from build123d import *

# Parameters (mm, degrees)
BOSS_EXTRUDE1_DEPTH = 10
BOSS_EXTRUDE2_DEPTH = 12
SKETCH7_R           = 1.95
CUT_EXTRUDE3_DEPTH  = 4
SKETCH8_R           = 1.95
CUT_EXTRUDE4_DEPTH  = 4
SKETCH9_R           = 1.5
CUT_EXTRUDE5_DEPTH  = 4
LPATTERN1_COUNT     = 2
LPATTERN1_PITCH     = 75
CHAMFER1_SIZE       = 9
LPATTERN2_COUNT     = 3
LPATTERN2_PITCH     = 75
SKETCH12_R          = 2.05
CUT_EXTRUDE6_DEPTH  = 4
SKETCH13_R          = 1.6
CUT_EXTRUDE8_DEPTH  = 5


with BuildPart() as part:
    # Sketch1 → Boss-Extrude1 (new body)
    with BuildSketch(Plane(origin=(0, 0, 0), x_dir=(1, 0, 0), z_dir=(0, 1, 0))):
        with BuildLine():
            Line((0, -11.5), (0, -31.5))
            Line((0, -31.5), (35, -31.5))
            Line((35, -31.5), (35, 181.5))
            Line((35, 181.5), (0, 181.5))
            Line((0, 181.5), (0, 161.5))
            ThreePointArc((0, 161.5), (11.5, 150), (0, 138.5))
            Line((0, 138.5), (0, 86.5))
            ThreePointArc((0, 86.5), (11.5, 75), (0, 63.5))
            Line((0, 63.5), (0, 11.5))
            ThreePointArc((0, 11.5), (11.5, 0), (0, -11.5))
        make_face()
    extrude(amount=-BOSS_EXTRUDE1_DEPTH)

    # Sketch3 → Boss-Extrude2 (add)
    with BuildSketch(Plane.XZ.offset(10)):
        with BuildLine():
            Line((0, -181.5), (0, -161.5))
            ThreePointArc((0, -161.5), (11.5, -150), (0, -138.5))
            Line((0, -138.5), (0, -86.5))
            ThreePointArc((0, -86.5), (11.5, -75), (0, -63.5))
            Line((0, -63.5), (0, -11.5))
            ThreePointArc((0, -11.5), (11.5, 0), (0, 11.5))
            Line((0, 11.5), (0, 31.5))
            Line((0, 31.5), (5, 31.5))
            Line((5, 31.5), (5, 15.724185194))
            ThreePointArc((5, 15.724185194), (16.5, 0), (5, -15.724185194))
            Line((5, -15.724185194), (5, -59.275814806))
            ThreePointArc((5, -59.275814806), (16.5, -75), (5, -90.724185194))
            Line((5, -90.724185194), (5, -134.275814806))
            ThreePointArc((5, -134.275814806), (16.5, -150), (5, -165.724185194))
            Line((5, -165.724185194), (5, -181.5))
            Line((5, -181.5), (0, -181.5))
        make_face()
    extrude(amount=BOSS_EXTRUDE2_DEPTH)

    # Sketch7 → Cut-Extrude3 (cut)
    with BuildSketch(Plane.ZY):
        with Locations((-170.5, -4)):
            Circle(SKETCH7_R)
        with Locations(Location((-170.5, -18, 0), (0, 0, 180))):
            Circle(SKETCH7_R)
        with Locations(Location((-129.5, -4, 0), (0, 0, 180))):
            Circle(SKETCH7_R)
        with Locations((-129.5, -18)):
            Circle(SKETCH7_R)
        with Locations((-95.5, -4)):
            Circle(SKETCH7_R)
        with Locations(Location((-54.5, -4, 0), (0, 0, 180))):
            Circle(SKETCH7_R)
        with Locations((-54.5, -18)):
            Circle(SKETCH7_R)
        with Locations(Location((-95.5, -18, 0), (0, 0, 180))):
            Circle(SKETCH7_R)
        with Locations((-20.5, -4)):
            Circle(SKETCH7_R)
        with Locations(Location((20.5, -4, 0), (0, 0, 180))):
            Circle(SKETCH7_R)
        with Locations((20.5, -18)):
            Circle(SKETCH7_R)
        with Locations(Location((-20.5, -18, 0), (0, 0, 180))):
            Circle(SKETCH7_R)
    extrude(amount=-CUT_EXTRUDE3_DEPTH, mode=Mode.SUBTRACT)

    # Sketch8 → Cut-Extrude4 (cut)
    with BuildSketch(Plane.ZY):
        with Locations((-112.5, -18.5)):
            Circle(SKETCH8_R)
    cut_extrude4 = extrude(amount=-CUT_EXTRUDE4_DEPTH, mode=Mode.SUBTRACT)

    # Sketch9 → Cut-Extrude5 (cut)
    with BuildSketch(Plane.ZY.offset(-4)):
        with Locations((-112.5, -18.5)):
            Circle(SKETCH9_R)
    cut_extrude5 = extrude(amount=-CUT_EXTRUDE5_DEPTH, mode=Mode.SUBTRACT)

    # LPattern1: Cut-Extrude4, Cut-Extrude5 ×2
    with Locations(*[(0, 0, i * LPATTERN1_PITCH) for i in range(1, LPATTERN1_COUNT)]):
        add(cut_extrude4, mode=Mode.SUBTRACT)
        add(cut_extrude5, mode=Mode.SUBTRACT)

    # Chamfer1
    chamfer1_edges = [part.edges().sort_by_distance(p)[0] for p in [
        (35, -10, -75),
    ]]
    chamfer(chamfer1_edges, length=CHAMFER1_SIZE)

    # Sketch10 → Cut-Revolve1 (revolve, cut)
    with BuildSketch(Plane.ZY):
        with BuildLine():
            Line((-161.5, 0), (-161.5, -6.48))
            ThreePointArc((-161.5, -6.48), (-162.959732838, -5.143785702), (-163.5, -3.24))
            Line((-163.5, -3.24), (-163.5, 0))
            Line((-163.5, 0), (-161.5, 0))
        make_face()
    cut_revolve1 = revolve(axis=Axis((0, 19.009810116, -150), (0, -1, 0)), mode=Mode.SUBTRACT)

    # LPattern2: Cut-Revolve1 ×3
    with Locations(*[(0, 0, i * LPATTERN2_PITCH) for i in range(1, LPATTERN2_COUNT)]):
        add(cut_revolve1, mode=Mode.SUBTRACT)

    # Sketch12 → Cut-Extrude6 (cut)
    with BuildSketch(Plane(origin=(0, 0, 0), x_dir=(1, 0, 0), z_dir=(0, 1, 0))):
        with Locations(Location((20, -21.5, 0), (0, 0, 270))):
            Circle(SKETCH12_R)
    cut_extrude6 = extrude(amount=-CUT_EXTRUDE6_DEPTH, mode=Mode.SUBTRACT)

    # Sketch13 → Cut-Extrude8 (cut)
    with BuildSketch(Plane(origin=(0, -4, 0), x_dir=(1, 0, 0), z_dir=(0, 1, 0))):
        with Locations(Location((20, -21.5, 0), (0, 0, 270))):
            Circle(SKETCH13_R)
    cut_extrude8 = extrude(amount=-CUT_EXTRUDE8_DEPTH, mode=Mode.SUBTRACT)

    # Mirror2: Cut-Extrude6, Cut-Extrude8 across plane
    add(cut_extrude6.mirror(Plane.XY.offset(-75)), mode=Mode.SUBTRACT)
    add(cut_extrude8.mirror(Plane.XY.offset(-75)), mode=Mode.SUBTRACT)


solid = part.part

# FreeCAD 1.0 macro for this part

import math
import FreeCAD as App
import Part
import Sketcher

V = App.Vector


def edges_at(feature, points):
    """Names of the edges that pass closest to the given points."""
    edges = feature.Shape.Edges
    near = lambda p: min(range(len(edges)), key=lambda i: edges[i].distToShape(Part.Vertex(*p))[0])
    return sorted({f"Edge{near(p) + 1}" for p in points})

doc = App.newDocument("Part")
body = doc.addObject("PartDesign::Body", "Body")

sketch1 = body.newObject("Sketcher::SketchObject", "Sketch")
sketch1.AttachmentSupport = (doc.getObject("XZ_Plane"), [""])
sketch1.MapMode = "FlatFace"
sketch1.addGeometry(Part.LineSegment(V(0, 12, 0), V(0, 32, 0)), False)
sketch1.addGeometry(Part.LineSegment(V(0, 32, 0), V(35, 32, 0)), False)
sketch1.addGeometry(Part.LineSegment(V(35, 32, 0), V(35, -182, 0)), False)
sketch1.addGeometry(Part.LineSegment(V(35, -182, 0), V(0, -182, 0)), False)
sketch1.addGeometry(Part.LineSegment(V(0, -182, 0), V(0, -162, 0)), False)
sketch1.addGeometry(Part.ArcOfCircle(Part.Circle(V(0, -150, 0), V(0, 0, 1), 12), math.radians(-90), math.radians(90)), False)
sketch1.addGeometry(Part.LineSegment(V(0, -138, 0), V(0, -86, 0)), False)
sketch1.addGeometry(Part.ArcOfCircle(Part.Circle(V(0, -75, 0), V(0, 0, 1), 12), math.radians(-90), math.radians(90)), False)
sketch1.addGeometry(Part.LineSegment(V(0, -64, 0), V(0, -12, 0)), False)
sketch1.addGeometry(Part.ArcOfCircle(Part.Circle(V(0, 0, 0), V(0, 0, 1), 12), math.radians(-90), math.radians(90)), False)
sketch1.addConstraint(Sketcher.Constraint("Coincident", 0, 2, 1, 1))
sketch1.addConstraint(Sketcher.Constraint("Coincident", 1, 2, 2, 1))
sketch1.addConstraint(Sketcher.Constraint("Coincident", 2, 2, 3, 1))
sketch1.addConstraint(Sketcher.Constraint("Coincident", 3, 2, 4, 1))
sketch1.addConstraint(Sketcher.Constraint("Coincident", 4, 2, 5, 1))
sketch1.addConstraint(Sketcher.Constraint("Coincident", 5, 2, 6, 1))
sketch1.addConstraint(Sketcher.Constraint("Coincident", 6, 2, 7, 1))
sketch1.addConstraint(Sketcher.Constraint("Coincident", 7, 2, 8, 1))
sketch1.addConstraint(Sketcher.Constraint("Coincident", 8, 2, 9, 1))
sketch1.addConstraint(Sketcher.Constraint("Coincident", 9, 2, 0, 1))
sketch1.addConstraint(Sketcher.Constraint("Vertical", 0))
sketch1.addConstraint(Sketcher.Constraint("Horizontal", 1))
sketch1.addConstraint(Sketcher.Constraint("Vertical", 2))
sketch1.addConstraint(Sketcher.Constraint("Horizontal", 3))
sketch1.addConstraint(Sketcher.Constraint("Vertical", 4))
sketch1.addConstraint(Sketcher.Constraint("Vertical", 6))
sketch1.addConstraint(Sketcher.Constraint("Vertical", 8))
sketch1.addConstraint(Sketcher.Constraint("Coincident", 9, 3, -1, 1))
sketch1.addConstraint(Sketcher.Constraint("Equal", 5, 7))
sketch1.addConstraint(Sketcher.Constraint("Equal", 7, 9))
sketch1.addConstraint(Sketcher.Constraint("PointOnObject", 5, 3, -2))
sketch1.addConstraint(Sketcher.Constraint("PointOnObject", 7, 3, -2))
sketch1.addConstraint(Sketcher.Constraint("PointOnObject", 0, 2, -2))
sketch1.addConstraint(Sketcher.Constraint("PointOnObject", 3, 2, -2))
sketch1.addConstraint(Sketcher.Constraint("PointOnObject", 5, 2, -2))
sketch1.addConstraint(Sketcher.Constraint("PointOnObject", 7, 2, -2))
sketch1.addConstraint(Sketcher.Constraint("Equal", 0, 4))
sketch1.addConstraint(Sketcher.Constraint("Equal", 6, 8))
sketch1.addConstraint(Sketcher.Constraint("Radius", 5, 11.5))
sketch1.addConstraint(Sketcher.Constraint("DistanceX", 1, 1, 1, 2, 35.0))
sketch1.addConstraint(Sketcher.Constraint("DistanceY", 0, 1, 0, 2, 20.0))
sketch1.addConstraint(Sketcher.Constraint("DistanceY", 2, 2, 2, 1, 213.0))
pad1 = body.newObject("PartDesign::Pad", "Pad")
pad1.Profile = sketch1
pad1.Length = 10

sketch2 = body.newObject("Sketcher::SketchObject", "Sketch001")
sketch2.AttachmentSupport = (doc.getObject("XZ_Plane"), [""])
sketch2.MapMode = "FlatFace"
sketch2.AttachmentOffset = App.Placement(V(0, 0, 10), App.Rotation())
sketch2.addGeometry(Part.LineSegment(V(0, -162, 0), V(0, -182, 0)), False)
sketch2.addGeometry(Part.LineSegment(V(0, -182, 0), V(5, -182, 0)), False)
sketch2.addGeometry(Part.LineSegment(V(5, -182, 0), V(5, -166, 0)), False)
sketch2.addGeometry(Part.ArcOfCircle(Part.Circle(V(0, -150, 0), V(0, 0, 1), 17), math.radians(-72), math.radians(72)), False)
sketch2.addGeometry(Part.LineSegment(V(5, -134, 0), V(5, -91, 0)), False)
sketch2.addGeometry(Part.ArcOfCircle(Part.Circle(V(0, -75, 0), V(0, 0, 1), 17), math.radians(-72), math.radians(72)), False)
sketch2.addGeometry(Part.LineSegment(V(5, -59, 0), V(5, -16, 0)), False)
sketch2.addGeometry(Part.ArcOfCircle(Part.Circle(V(0, 0, 0), V(0, 0, 1), 17), math.radians(-72), math.radians(72)), False)
sketch2.addGeometry(Part.LineSegment(V(5, 16, 0), V(5, 32, 0)), False)
sketch2.addGeometry(Part.LineSegment(V(5, 32, 0), V(0, 32, 0)), False)
sketch2.addGeometry(Part.LineSegment(V(0, 32, 0), V(0, 12, 0)), False)
sketch2.addGeometry(Part.ArcOfCircle(Part.Circle(V(0, 0, 0), V(0, 0, 1), 12), math.radians(-90), math.radians(90)), False)
sketch2.addGeometry(Part.LineSegment(V(0, -12, 0), V(0, -64, 0)), False)
sketch2.addGeometry(Part.ArcOfCircle(Part.Circle(V(0, -75, 0), V(0, 0, 1), 12), math.radians(-90), math.radians(90)), False)
sketch2.addGeometry(Part.LineSegment(V(0, -86, 0), V(0, -138, 0)), False)
sketch2.addGeometry(Part.ArcOfCircle(Part.Circle(V(0, -150, 0), V(0, 0, 1), 12), math.radians(-90), math.radians(90)), False)
sketch2.addConstraint(Sketcher.Constraint("Coincident", 0, 2, 1, 1))
sketch2.addConstraint(Sketcher.Constraint("Coincident", 1, 2, 2, 1))
sketch2.addConstraint(Sketcher.Constraint("Coincident", 2, 2, 3, 1))
sketch2.addConstraint(Sketcher.Constraint("Coincident", 3, 2, 4, 1))
sketch2.addConstraint(Sketcher.Constraint("Coincident", 4, 2, 5, 1))
sketch2.addConstraint(Sketcher.Constraint("Coincident", 5, 2, 6, 1))
sketch2.addConstraint(Sketcher.Constraint("Coincident", 6, 2, 7, 1))
sketch2.addConstraint(Sketcher.Constraint("Coincident", 7, 2, 8, 1))
sketch2.addConstraint(Sketcher.Constraint("Coincident", 8, 2, 9, 1))
sketch2.addConstraint(Sketcher.Constraint("Coincident", 9, 2, 10, 1))
sketch2.addConstraint(Sketcher.Constraint("Coincident", 10, 2, 11, 2))
sketch2.addConstraint(Sketcher.Constraint("Coincident", 11, 1, 12, 1))
sketch2.addConstraint(Sketcher.Constraint("Coincident", 12, 2, 13, 2))
sketch2.addConstraint(Sketcher.Constraint("Coincident", 13, 1, 14, 1))
sketch2.addConstraint(Sketcher.Constraint("Coincident", 14, 2, 15, 2))
sketch2.addConstraint(Sketcher.Constraint("Coincident", 15, 1, 0, 1))
sketch2.addConstraint(Sketcher.Constraint("Vertical", 0))
sketch2.addConstraint(Sketcher.Constraint("Horizontal", 1))
sketch2.addConstraint(Sketcher.Constraint("Vertical", 2))
sketch2.addConstraint(Sketcher.Constraint("Vertical", 4))
sketch2.addConstraint(Sketcher.Constraint("Vertical", 6))
sketch2.addConstraint(Sketcher.Constraint("Vertical", 8))
sketch2.addConstraint(Sketcher.Constraint("Horizontal", 9))
sketch2.addConstraint(Sketcher.Constraint("Vertical", 10))
sketch2.addConstraint(Sketcher.Constraint("Vertical", 12))
sketch2.addConstraint(Sketcher.Constraint("Vertical", 14))
sketch2.addConstraint(Sketcher.Constraint("Coincident", 7, 3, -1, 1))
sketch2.addConstraint(Sketcher.Constraint("Coincident", 11, 3, -1, 1))
sketch2.addConstraint(Sketcher.Constraint("Coincident", 13, 3, 5, 3))
sketch2.addConstraint(Sketcher.Constraint("Coincident", 15, 3, 3, 3))
sketch2.addConstraint(Sketcher.Constraint("Equal", 3, 5))
sketch2.addConstraint(Sketcher.Constraint("Equal", 5, 7))
sketch2.addConstraint(Sketcher.Constraint("Equal", 11, 13))
sketch2.addConstraint(Sketcher.Constraint("Equal", 13, 15))
sketch2.addConstraint(Sketcher.Constraint("PointOnObject", 3, 3, -2))
sketch2.addConstraint(Sketcher.Constraint("PointOnObject", 5, 3, -2))
sketch2.addConstraint(Sketcher.Constraint("PointOnObject", 0, 2, -2))
sketch2.addConstraint(Sketcher.Constraint("PointOnObject", 9, 2, -2))
sketch2.addConstraint(Sketcher.Constraint("PointOnObject", 11, 1, -2))
sketch2.addConstraint(Sketcher.Constraint("PointOnObject", 13, 1, -2))
sketch2.addConstraint(Sketcher.Constraint("Vertical", 2, 2, 3, 2))
sketch2.addConstraint(Sketcher.Constraint("Vertical", 4, 2, 5, 2))
sketch2.addConstraint(Sketcher.Constraint("Vertical", 6, 2, 7, 2))
sketch2.addConstraint(Sketcher.Constraint("Equal", 4, 6))
sketch2.addConstraint(Sketcher.Constraint("Equal", 2, 8))
sketch2.addConstraint(Sketcher.Constraint("Radius", 3, 16.5))
sketch2.addConstraint(Sketcher.Constraint("Radius", 11, 11.5))
sketch2.addConstraint(Sketcher.Constraint("DistanceX", 1, 1, 1, 2, 5.0))
sketch2.addConstraint(Sketcher.Constraint("DistanceY", 0, 2, 0, 1, 20.0))
sketch2.addConstraint(Sketcher.Constraint("DistanceY", 12, 2, 12, 1, 52.0))
pad2 = body.newObject("PartDesign::Pad", "Pad001")
pad2.Profile = sketch2
pad2.Length = 12

sketch3 = body.newObject("Sketcher::SketchObject", "Sketch002")
sketch3.AttachmentSupport = (doc.getObject("YZ_Plane"), [""])
sketch3.MapMode = "FlatFace"
sketch3.addGeometry(Part.Circle(V(-4, -170.5, 0), V(0, 0, 1), 1.9), False)
sketch3.addGeometry(Part.Circle(V(-18, -170.5, 0), V(0, 0, 1), 1.9), False)
sketch3.addGeometry(Part.Circle(V(-4, -129.5, 0), V(0, 0, 1), 1.9), False)
sketch3.addGeometry(Part.Circle(V(-18, -129.5, 0), V(0, 0, 1), 1.9), False)
sketch3.addGeometry(Part.Circle(V(-4, -95.5, 0), V(0, 0, 1), 1.9), False)
sketch3.addGeometry(Part.Circle(V(-4, -54.5, 0), V(0, 0, 1), 1.9), False)
sketch3.addGeometry(Part.Circle(V(-18, -54.5, 0), V(0, 0, 1), 1.9), False)
sketch3.addGeometry(Part.Circle(V(-18, -95.5, 0), V(0, 0, 1), 1.9), False)
sketch3.addGeometry(Part.Circle(V(-4, -20.5, 0), V(0, 0, 1), 1.9), False)
sketch3.addGeometry(Part.Circle(V(-4, 20.5, 0), V(0, 0, 1), 1.9), False)
sketch3.addGeometry(Part.Circle(V(-18, 20.5, 0), V(0, 0, 1), 1.9), False)
sketch3.addGeometry(Part.Circle(V(-18, -20.5, 0), V(0, 0, 1), 1.9), False)
sketch3.addConstraint(Sketcher.Constraint("Equal", 0, 1))
sketch3.addConstraint(Sketcher.Constraint("Equal", 1, 2))
sketch3.addConstraint(Sketcher.Constraint("Equal", 2, 3))
sketch3.addConstraint(Sketcher.Constraint("Equal", 3, 4))
sketch3.addConstraint(Sketcher.Constraint("Equal", 4, 5))
sketch3.addConstraint(Sketcher.Constraint("Equal", 5, 6))
sketch3.addConstraint(Sketcher.Constraint("Equal", 6, 7))
sketch3.addConstraint(Sketcher.Constraint("Equal", 7, 8))
sketch3.addConstraint(Sketcher.Constraint("Equal", 8, 9))
sketch3.addConstraint(Sketcher.Constraint("Equal", 9, 10))
sketch3.addConstraint(Sketcher.Constraint("Equal", 10, 11))
sketch3.addConstraint(Sketcher.Constraint("Symmetric", 8, 3, 9, 3, -1))
sketch3.addConstraint(Sketcher.Constraint("Symmetric", 10, 3, 11, 3, -1))
sketch3.addConstraint(Sketcher.Constraint("Horizontal", 0, 3, 1, 3))
sketch3.addConstraint(Sketcher.Constraint("Horizontal", 2, 3, 3, 3))
sketch3.addConstraint(Sketcher.Constraint("Horizontal", 5, 3, 6, 3))
sketch3.addConstraint(Sketcher.Constraint("Horizontal", 4, 3, 7, 3))
sketch3.addConstraint(Sketcher.Constraint("Horizontal", 9, 3, 10, 3))
sketch3.addConstraint(Sketcher.Constraint("Vertical", 0, 3, 2, 3))
sketch3.addConstraint(Sketcher.Constraint("Vertical", 1, 3, 3, 3))
sketch3.addConstraint(Sketcher.Constraint("Vertical", 2, 3, 4, 3))
sketch3.addConstraint(Sketcher.Constraint("Vertical", 4, 3, 5, 3))
sketch3.addConstraint(Sketcher.Constraint("Vertical", 3, 3, 6, 3))
sketch3.addConstraint(Sketcher.Constraint("Vertical", 6, 3, 7, 3))
sketch3.addConstraint(Sketcher.Constraint("Vertical", 5, 3, 8, 3))
sketch3.addConstraint(Sketcher.Constraint("Vertical", 7, 3, 10, 3))
sketch3.addConstraint(Sketcher.Constraint("Diameter", 0, 3.9))
sketch3.addConstraint(Sketcher.Constraint("DistanceX", 0, 3, -1, 1, 4.0))
sketch3.addConstraint(Sketcher.Constraint("DistanceX", 1, 3, -1, 1, 18.0))
sketch3.addConstraint(Sketcher.Constraint("DistanceY", 0, 3, 2, 3, 41.0))
sketch3.addConstraint(Sketcher.Constraint("DistanceY", 2, 3, 4, 3, 34.0))
sketch3.addConstraint(Sketcher.Constraint("DistanceY", 4, 3, 5, 3, 41.0))
sketch3.addConstraint(Sketcher.Constraint("DistanceY", 5, 3, 8, 3, 34.0))
sketch3.addConstraint(Sketcher.Constraint("DistanceY", 8, 3, 9, 3, 41.0))
pocket1 = body.newObject("PartDesign::Pocket", "Pocket")
pocket1.Profile = sketch3
pocket1.Length = 4
pocket1.Reversed = True

sketch4 = body.newObject("Sketcher::SketchObject", "Sketch003")
sketch4.AttachmentSupport = (doc.getObject("YZ_Plane"), [""])
sketch4.MapMode = "FlatFace"
sketch4.addGeometry(Part.Circle(V(-18.5, -112.5, 0), V(0, 0, 1), 1.9), False)
sketch4.addConstraint(Sketcher.Constraint("Diameter", 0, 3.9))
sketch4.addConstraint(Sketcher.Constraint("DistanceX", 0, 3, -1, 1, 18.5))
sketch4.addConstraint(Sketcher.Constraint("DistanceY", 0, 3, -1, 1, 112.5))
pocket2 = body.newObject("PartDesign::Pocket", "Pocket001")
pocket2.Profile = sketch4
pocket2.Length = 4
pocket2.Reversed = True

sketch5 = body.newObject("Sketcher::SketchObject", "Sketch004")
sketch5.AttachmentSupport = (doc.getObject("YZ_Plane"), [""])
sketch5.MapMode = "FlatFace"
sketch5.AttachmentOffset = App.Placement(V(0, 0, 4), App.Rotation())
sketch5.addGeometry(Part.Circle(V(-18.5, -112.5, 0), V(0, 0, 1), 1.5), False)
sketch5.addConstraint(Sketcher.Constraint("Diameter", 0, 3.0))
sketch5.addConstraint(Sketcher.Constraint("DistanceX", 0, 3, -1, 1, 18.5))
sketch5.addConstraint(Sketcher.Constraint("DistanceY", 0, 3, -1, 1, 112.5))
pocket3 = body.newObject("PartDesign::Pocket", "Pocket002")
pocket3.Profile = sketch5
pocket3.Length = 4
pocket3.Reversed = True
doc.recompute()

linearpattern = body.newObject("PartDesign::LinearPattern", "LinearPattern")
linearpattern.Originals = [pocket2, pocket3]
linearpattern.Direction = (doc.getObject("Z_Axis"), [""])
linearpattern.Mode = "offset"
linearpattern.Offset = 75
linearpattern.Occurrences = 2
body.Tip = linearpattern
doc.recompute()

chamfer = body.newObject("PartDesign::Chamfer", "Chamfer")
chamfer.Base = (linearpattern, edges_at(linearpattern, [(35, -10, -75)]))
chamfer.Size = 9

sketch6 = body.newObject("Sketcher::SketchObject", "Sketch005")
sketch6.AttachmentSupport = (doc.getObject("YZ_Plane"), [""])
sketch6.MapMode = "FlatFace"
sketch6.addGeometry(Part.LineSegment(V(-6.5, -161.5, 0), V(0, -161.5, 0)), False)
sketch6.addGeometry(Part.LineSegment(V(0, -161.5, 0), V(0, -163.5, 0)), False)
sketch6.addGeometry(Part.LineSegment(V(0, -163.5, 0), V(-3.2, -163.5, 0)), False)
sketch6.addGeometry(Part.ArcOfCircle(Part.Circle(V(-3.2, -159.9, 0), V(0, 0, 1), 3.6), math.radians(-153), math.radians(-90)), False)
sketch6.addGeometry(Part.LineSegment(V(0, -150, 0), V(-6.5, -150, 0)), True)
sketch6.addConstraint(Sketcher.Constraint("Coincident", 0, 2, 1, 1))
sketch6.addConstraint(Sketcher.Constraint("Coincident", 1, 2, 2, 1))
sketch6.addConstraint(Sketcher.Constraint("Tangent", 2, 2, 3, 2))
sketch6.addConstraint(Sketcher.Constraint("Coincident", 3, 1, 0, 1))
sketch6.addConstraint(Sketcher.Constraint("Horizontal", 0))
sketch6.addConstraint(Sketcher.Constraint("Vertical", 1))
sketch6.addConstraint(Sketcher.Constraint("Horizontal", 2))
sketch6.addConstraint(Sketcher.Constraint("Horizontal", 4))
sketch6.addConstraint(Sketcher.Constraint("PointOnObject", 0, 2, -2))
sketch6.addConstraint(Sketcher.Constraint("PointOnObject", 4, 1, -2))
sketch6.addConstraint(Sketcher.Constraint("Vertical", 3, 1, 4, 2))
sketch6.addConstraint(Sketcher.Constraint("DistanceY", 1, 2, 1, 1, 2.0))
sketch6.addConstraint(Sketcher.Constraint("DistanceY", 4, 1, -1, 1, 150.0))
sketch6.addConstraint(Sketcher.Constraint("DistanceX", 0, 1, 0, 2, 6.48))
sketch6.addConstraint(Sketcher.Constraint("DistanceX", 2, 2, 2, 1, 3.24))
sketch6.addConstraint(Sketcher.Constraint("DistanceY", 0, 2, -1, 1, 161.5))
groove = body.newObject("PartDesign::Groove", "Groove")
groove.Profile = sketch6
groove.ReferenceAxis = (sketch6, ["Axis0"])
groove.Angle = 360
doc.recompute()

linearpattern2 = body.newObject("PartDesign::LinearPattern", "LinearPattern001")
linearpattern2.Originals = [groove]
linearpattern2.Direction = (doc.getObject("Z_Axis"), [""])
linearpattern2.Mode = "offset"
linearpattern2.Offset = 75
linearpattern2.Occurrences = 3
body.Tip = linearpattern2

sketch7 = body.newObject("Sketcher::SketchObject", "Sketch006")
sketch7.AttachmentSupport = (doc.getObject("XZ_Plane"), [""])
sketch7.MapMode = "FlatFace"
sketch7.addGeometry(Part.Circle(V(20, 21.5, 0), V(0, 0, 1), 2), False)
sketch7.addConstraint(Sketcher.Constraint("Diameter", 0, 4.1))
sketch7.addConstraint(Sketcher.Constraint("DistanceX", -1, 1, 0, 3, 20.0))
sketch7.addConstraint(Sketcher.Constraint("DistanceY", -1, 1, 0, 3, 21.5))
pocket4 = body.newObject("PartDesign::Pocket", "Pocket003")
pocket4.Profile = sketch7
pocket4.Length = 4
pocket4.Reversed = True

sketch8 = body.newObject("Sketcher::SketchObject", "Sketch007")
sketch8.AttachmentSupport = (doc.getObject("XZ_Plane"), [""])
sketch8.MapMode = "FlatFace"
sketch8.AttachmentOffset = App.Placement(V(0, 0, 4), App.Rotation())
sketch8.addGeometry(Part.Circle(V(20, 21.5, 0), V(0, 0, 1), 1.6), False)
sketch8.addConstraint(Sketcher.Constraint("Diameter", 0, 3.2))
sketch8.addConstraint(Sketcher.Constraint("DistanceX", -1, 1, 0, 3, 20.0))
sketch8.addConstraint(Sketcher.Constraint("DistanceY", -1, 1, 0, 3, 21.5))
pocket5 = body.newObject("PartDesign::Pocket", "Pocket004")
pocket5.Profile = sketch8
pocket5.Length = 5
pocket5.Reversed = True
doc.recompute()

datumplane = body.newObject("PartDesign::Plane", "DatumPlane")
datumplane.AttachmentSupport = (doc.getObject("XY_Plane"), [""])
datumplane.MapMode = "FlatFace"
datumplane.AttachmentOffset = App.Placement(V(0, 0, -75), App.Rotation())
mirrored = body.newObject("PartDesign::Mirrored", "Mirrored")
mirrored.Originals = [pocket4, pocket5]
mirrored.MirrorPlane = (datumplane, [""])
body.Tip = mirrored

doc.recompute()
